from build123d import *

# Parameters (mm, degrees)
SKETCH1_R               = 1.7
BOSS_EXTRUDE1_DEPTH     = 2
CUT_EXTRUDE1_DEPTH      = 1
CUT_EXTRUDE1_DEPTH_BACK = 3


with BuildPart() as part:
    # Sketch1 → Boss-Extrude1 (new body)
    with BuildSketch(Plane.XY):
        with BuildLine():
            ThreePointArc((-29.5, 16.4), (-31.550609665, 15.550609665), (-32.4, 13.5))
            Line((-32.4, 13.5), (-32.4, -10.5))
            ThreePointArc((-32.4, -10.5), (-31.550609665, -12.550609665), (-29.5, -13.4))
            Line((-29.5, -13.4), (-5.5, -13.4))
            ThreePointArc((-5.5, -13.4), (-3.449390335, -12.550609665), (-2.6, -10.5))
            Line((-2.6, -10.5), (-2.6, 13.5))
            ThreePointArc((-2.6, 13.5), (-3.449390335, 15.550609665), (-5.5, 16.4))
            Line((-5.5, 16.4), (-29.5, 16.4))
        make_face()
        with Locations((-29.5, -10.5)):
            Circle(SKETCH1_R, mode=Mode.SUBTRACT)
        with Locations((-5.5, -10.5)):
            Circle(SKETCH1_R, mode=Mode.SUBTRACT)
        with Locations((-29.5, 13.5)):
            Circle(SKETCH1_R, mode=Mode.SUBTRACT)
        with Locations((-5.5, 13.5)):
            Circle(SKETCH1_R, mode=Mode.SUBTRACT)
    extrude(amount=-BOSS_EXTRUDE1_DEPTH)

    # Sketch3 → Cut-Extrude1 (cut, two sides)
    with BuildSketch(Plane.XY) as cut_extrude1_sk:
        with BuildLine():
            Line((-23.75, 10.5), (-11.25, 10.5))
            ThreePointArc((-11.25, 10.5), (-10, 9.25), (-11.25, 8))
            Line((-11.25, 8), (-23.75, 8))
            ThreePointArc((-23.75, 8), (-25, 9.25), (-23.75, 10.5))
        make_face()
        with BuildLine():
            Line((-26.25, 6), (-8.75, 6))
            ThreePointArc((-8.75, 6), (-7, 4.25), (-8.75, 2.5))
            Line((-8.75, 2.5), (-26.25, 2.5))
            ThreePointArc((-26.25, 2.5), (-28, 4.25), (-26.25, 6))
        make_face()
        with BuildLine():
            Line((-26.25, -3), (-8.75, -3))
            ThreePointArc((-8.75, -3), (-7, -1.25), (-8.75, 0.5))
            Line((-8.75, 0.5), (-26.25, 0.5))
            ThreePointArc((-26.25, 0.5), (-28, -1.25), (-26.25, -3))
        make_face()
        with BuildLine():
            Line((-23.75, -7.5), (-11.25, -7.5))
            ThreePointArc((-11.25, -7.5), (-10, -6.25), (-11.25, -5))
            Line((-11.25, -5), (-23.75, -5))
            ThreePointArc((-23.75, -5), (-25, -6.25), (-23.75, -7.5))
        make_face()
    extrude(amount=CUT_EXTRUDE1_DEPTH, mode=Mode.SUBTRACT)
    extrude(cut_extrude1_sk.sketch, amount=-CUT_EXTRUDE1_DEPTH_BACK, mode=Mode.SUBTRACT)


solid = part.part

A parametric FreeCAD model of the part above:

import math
import FreeCAD as App
import Part
import Sketcher

V = App.Vector
Q = App.Units.Quantity

doc = App.newDocument("Part")
params = doc.addObject("Spreadsheet::Sheet", "Params")
for row, (alias, value) in enumerate([
    ("sketch1_diameter", "3.4 mm"),
    ("sketch1_radius", "2.9 mm"),
    ("sketch1_width", "24 mm"),
    ("pad1_length", "2 mm"),
    ("sketch2_radius", "1.25 mm"),
    ("sketch2_radius2", "1.75 mm"),
    ("sketch2_width", "12.5 mm"),
    ("sketch2_width2", "17.5 mm"),
], start=1):
    params.set(f"A{row}", alias)
    params.set(f"B{row}", "=" + value)
    params.setAlias(f"B{row}", alias)

body = doc.addObject("PartDesign::Body", "Body")

sketch1 = body.newObject("Sketcher::SketchObject", "Sketch")
sketch1.AttachmentSupport = (doc.getObject("XY_Plane"), [""])
sketch1.MapMode = "FlatFace"
sketch1.addGeometry(Part.ArcOfCircle(Part.Circle(V(-29.5, 13.5, 0), V(0, 0, 1), 2.9), math.radians(90), math.radians(180)), False)
sketch1.addGeometry(Part.LineSegment(V(-32.4, 13.5, 0), V(-32.4, -10.5, 0)), False)
sketch1.addGeometry(Part.ArcOfCircle(Part.Circle(V(-29.5, -10.5, 0), V(0, 0, 1), 2.9), math.radians(-180), math.radians(-90)), False)
sketch1.addGeometry(Part.LineSegment(V(-29.5, -13.4, 0), V(-5.5, -13.4, 0)), False)
sketch1.addGeometry(Part.ArcOfCircle(Part.Circle(V(-5.5, -10.5, 0), V(0, 0, 1), 2.9), math.radians(-90), math.radians(0)), False)
sketch1.addGeometry(Part.LineSegment(V(-2.6, -10.5, 0), V(-2.6, 13.5, 0)), False)
sketch1.addGeometry(Part.ArcOfCircle(Part.Circle(V(-5.5, 13.5, 0), V(0, 0, 1), 2.9), math.radians(0), math.radians(90)), False)
sketch1.addGeometry(Part.LineSegment(V(-5.5, 16.4, 0), V(-29.5, 16.4, 0)), False)
sketch1.addGeometry(Part.Circle(V(-29.5, -10.5, 0), V(0, 0, 1), 1.7), False)
sketch1.addGeometry(Part.Circle(V(-5.5, -10.5, 0), V(0, 0, 1), 1.7), False)
sketch1.addGeometry(Part.Circle(V(-29.5, 13.5, 0), V(0, 0, 1), 1.7), False)
sketch1.addGeometry(Part.Circle(V(-5.5, 13.5, 0), V(0, 0, 1), 1.7), False)
sketch1.addConstraint(Sketcher.Constraint("Tangent", 0, 2, 1, 1))
sketch1.addConstraint(Sketcher.Constraint("Tangent", 1, 2, 2, 1))
sketch1.addConstraint(Sketcher.Constraint("Tangent", 2, 2, 3, 1))
sketch1.addConstraint(Sketcher.Constraint("Tangent", 3, 2, 4, 1))
sketch1.addConstraint(Sketcher.Constraint("Tangent", 4, 2, 5, 1))
sketch1.addConstraint(Sketcher.Constraint("Tangent", 5, 2, 6, 1))
sketch1.addConstraint(Sketcher.Constraint("Tangent", 6, 2, 7, 1))
sketch1.addConstraint(Sketcher.Constraint("Tangent", 7, 2, 0, 1))
sketch1.addConstraint(Sketcher.Constraint("Vertical", 1))
sketch1.addConstraint(Sketcher.Constraint("Horizontal", 3))
sketch1.addConstraint(Sketcher.Constraint("Vertical", 5))
sketch1.addConstraint(Sketcher.Constraint("Horizontal", 7))
sketch1.addConstraint(Sketcher.Constraint("Coincident", 8, 3, 2, 3))
sketch1.addConstraint(Sketcher.Constraint("Coincident", 9, 3, 4, 3))
sketch1.addConstraint(Sketcher.Constraint("Coincident", 10, 3, 0, 3))
sketch1.addConstraint(Sketcher.Constraint("Coincident", 11, 3, 6, 3))
sketch1.addConstraint(Sketcher.Constraint("Equal", 0, 2))
sketch1.addConstraint(Sketcher.Constraint("Equal", 2, 4))
sketch1.addConstraint(Sketcher.Constraint("Equal", 4, 6))
sketch1.addConstraint(Sketcher.Constraint("Equal", 8, 9))
sketch1.addConstraint(Sketcher.Constraint("Equal", 9, 10))
sketch1.addConstraint(Sketcher.Constraint("Equal", 10, 11))
sketch1.addConstraint(Sketcher.Constraint("Equal", 7, 1))
sketch1.addConstraint(Sketcher.Constraint("Diameter", 8, Q("3.4 mm")))
sketch1.addConstraint(Sketcher.Constraint("Radius", 0, Q("2.9 mm")))
sketch1.addConstraint(Sketcher.Constraint("DistanceX", 3, 1, 3, 2, Q("24 mm")))
sketch1.addConstraint(Sketcher.Constraint("DistanceX", 0, 3, -1, 1, Q("29.5 mm")))
sketch1.addConstraint(Sketcher.Constraint("DistanceY", -1, 1, 0, 3, Q("13.5 mm")))
sketch1.setExpression("Constraints[23]", "Params.sketch1_diameter")
sketch1.setExpression("Constraints[24]", "Params.sketch1_radius")
sketch1.setExpression("Constraints[25]", "Params.sketch1_width")
pad1 = body.newObject("PartDesign::Pad", "Pad")
pad1.Profile = sketch1
pad1.setExpression("Length", "Params.pad1_length")
pad1.Reversed = True

sketch2 = body.newObject("Sketcher::SketchObject", "Sketch001")
sketch2.AttachmentSupport = (doc.getObject("XY_Plane"), [""])
sketch2.MapMode = "FlatFace"
sketch2.addGeometry(Part.LineSegment(V(-11.2, 10.5, 0), V(-23.8, 10.5, 0)), False)
sketch2.addGeometry(Part.ArcOfCircle(Part.Circle(V(-23.8, 9.2, 0), V(0, 0, 1), 1.2), math.radians(90), math.radians(270)), False)
sketch2.addGeometry(Part.LineSegment(V(-23.8, 8, 0), V(-11.2, 8, 0)), False)
sketch2.addGeometry(Part.ArcOfCircle(Part.Circle(V(-11.2, 9.2, 0), V(0, 0, 1), 1.2), math.radians(-90), math.radians(90)), False)
sketch2.addGeometry(Part.LineSegment(V(-8.8, 6, 0), V(-26.2, 6, 0)), False)
sketch2.addGeometry(Part.ArcOfCircle(Part.Circle(V(-26.2, 4.2, 0), V(0, 0, 1), 1.8), math.radians(90), math.radians(270)), False)
sketch2.addGeometry(Part.LineSegment(V(-26.2, 2.5, 0), V(-8.8, 2.5, 0)), False)
sketch2.addGeometry(Part.ArcOfCircle(Part.Circle(V(-8.8, 4.2, 0), V(0, 0, 1), 1.8), math.radians(-90), math.radians(90)), False)
sketch2.addGeometry(Part.LineSegment(V(-26.2, -3, 0), V(-8.8, -3, 0)), False)
sketch2.addGeometry(Part.ArcOfCircle(Part.Circle(V(-8.8, -1.2, 0), V(0, 0, 1), 1.8), math.radians(-90), math.radians(90)), False)
sketch2.addGeometry(Part.LineSegment(V(-8.8, 0.5, 0), V(-26.2, 0.5, 0)), False)
sketch2.addGeometry(Part.ArcOfCircle(Part.Circle(V(-26.2, -1.2, 0), V(0, 0, 1), 1.8), math.radians(90), math.radians(270)), False)
sketch2.addGeometry(Part.LineSegment(V(-23.8, -7.5, 0), V(-11.2, -7.5, 0)), False)
sketch2.addGeometry(Part.ArcOfCircle(Part.Circle(V(-11.2, -6.2, 0), V(0, 0, 1), 1.2), math.radians(-90), math.radians(90)), False)
sketch2.addGeometry(Part.LineSegment(V(-11.2, -5, 0), V(-23.8, -5, 0)), False)
sketch2.addGeometry(Part.ArcOfCircle(Part.Circle(V(-23.8, -6.2, 0), V(0, 0, 1), 1.2), math.radians(90), math.radians(270)), False)
sketch2.addConstraint(Sketcher.Constraint("Tangent", 0, 2, 1, 1))
sketch2.addConstraint(Sketcher.Constraint("Tangent", 1, 2, 2, 1))
sketch2.addConstraint(Sketcher.Constraint("Tangent", 2, 2, 3, 1))
sketch2.addConstraint(Sketcher.Constraint("Tangent", 3, 2, 0, 1))
sketch2.addConstraint(Sketcher.Constraint("Tangent", 4, 2, 5, 1))
sketch2.addConstraint(Sketcher.Constraint("Tangent", 5, 2, 6, 1))
sketch2.addConstraint(Sketcher.Constraint("Tangent", 6, 2, 7, 1))
sketch2.addConstraint(Sketcher.Constraint("Tangent", 7, 2, 4, 1))
sketch2.addConstraint(Sketcher.Constraint("Tangent", 8, 2, 9, 1))
sketch2.addConstraint(Sketcher.Constraint("Tangent", 9, 2, 10, 1))
sketch2.addConstraint(Sketcher.Constraint("Tangent", 10, 2, 11, 1))
sketch2.addConstraint(Sketcher.Constraint("Tangent", 11, 2, 8, 1))
sketch2.addConstraint(Sketcher.Constraint("Tangent", 12, 2, 13, 1))
sketch2.addConstraint(Sketcher.Constraint("Tangent", 13, 2, 14, 1))
sketch2.addConstraint(Sketcher.Constraint("Tangent", 14, 2, 15, 1))
sketch2.addConstraint(Sketcher.Constraint("Tangent", 15, 2, 12, 1))
sketch2.addConstraint(Sketcher.Constraint("Horizontal", 0))
sketch2.addConstraint(Sketcher.Constraint("Horizontal", 2))
sketch2.addConstraint(Sketcher.Constraint("Horizontal", 4))
sketch2.addConstraint(Sketcher.Constraint("Horizontal", 6))
sketch2.addConstraint(Sketcher.Constraint("Horizontal", 8))
sketch2.addConstraint(Sketcher.Constraint("Horizontal", 10))
sketch2.addConstraint(Sketcher.Constraint("Horizontal", 12))
sketch2.addConstraint(Sketcher.Constraint("Horizontal", 14))
sketch2.addConstraint(Sketcher.Constraint("Equal", 7, 9))
sketch2.addConstraint(Sketcher.Constraint("Equal", 3, 13))
sketch2.addConstraint(Sketcher.Constraint("Vertical", 7, 3, 9, 3))
sketch2.addConstraint(Sketcher.Constraint("Vertical", 5, 3, 11, 3))
sketch2.addConstraint(Sketcher.Constraint("Vertical", 3, 3, 13, 3))
sketch2.addConstraint(Sketcher.Constraint("Vertical", 1, 3, 15, 3))
sketch2.addConstraint(Sketcher.Constraint("Radius", 1, Q("1.25 mm")))
sketch2.addConstraint(Sketcher.Constraint("Radius", 5, Q("1.75 mm")))
sketch2.addConstraint(Sketcher.Constraint("DistanceX", 0, 2, 0, 1, Q("12.5 mm")))
sketch2.addConstraint(Sketcher.Constraint("DistanceX", 4, 2, 4, 1, Q("17.5 mm")))
sketch2.addConstraint(Sketcher.Constraint("DistanceY", -1, 1, 1, 2, Q("8 mm")))
sketch2.addConstraint(Sketcher.Constraint("DistanceY", -1, 1, 4, 2, Q("6 mm")))
sketch2.addConstraint(Sketcher.Constraint("DistanceY", 8, 2, -1, 1, Q("3 mm")))
sketch2.addConstraint(Sketcher.Constraint("DistanceY", 13, 2, -1, 1, Q("5 mm")))
sketch2.addConstraint(Sketcher.Constraint("DistanceX", 5, 3, 3, 3, Q("15 mm")))
sketch2.addConstraint(Sketcher.Constraint("DistanceX", 1, 3, -1, 1, Q("23.75 mm")))
sketch2.setExpression("Constraints[30]", "Params.sketch2_radius")
sketch2.setExpression("Constraints[31]", "Params.sketch2_radius2")
sketch2.setExpression("Constraints[32]", "Params.sketch2_width")
sketch2.setExpression("Constraints[33]", "Params.sketch2_width2")
pocket1 = body.newObject("PartDesign::Pocket", "Pocket")
pocket1.Profile = sketch2
pocket1.Type = "ThroughAll"
pocket1.Midplane = True

doc.recompute()
